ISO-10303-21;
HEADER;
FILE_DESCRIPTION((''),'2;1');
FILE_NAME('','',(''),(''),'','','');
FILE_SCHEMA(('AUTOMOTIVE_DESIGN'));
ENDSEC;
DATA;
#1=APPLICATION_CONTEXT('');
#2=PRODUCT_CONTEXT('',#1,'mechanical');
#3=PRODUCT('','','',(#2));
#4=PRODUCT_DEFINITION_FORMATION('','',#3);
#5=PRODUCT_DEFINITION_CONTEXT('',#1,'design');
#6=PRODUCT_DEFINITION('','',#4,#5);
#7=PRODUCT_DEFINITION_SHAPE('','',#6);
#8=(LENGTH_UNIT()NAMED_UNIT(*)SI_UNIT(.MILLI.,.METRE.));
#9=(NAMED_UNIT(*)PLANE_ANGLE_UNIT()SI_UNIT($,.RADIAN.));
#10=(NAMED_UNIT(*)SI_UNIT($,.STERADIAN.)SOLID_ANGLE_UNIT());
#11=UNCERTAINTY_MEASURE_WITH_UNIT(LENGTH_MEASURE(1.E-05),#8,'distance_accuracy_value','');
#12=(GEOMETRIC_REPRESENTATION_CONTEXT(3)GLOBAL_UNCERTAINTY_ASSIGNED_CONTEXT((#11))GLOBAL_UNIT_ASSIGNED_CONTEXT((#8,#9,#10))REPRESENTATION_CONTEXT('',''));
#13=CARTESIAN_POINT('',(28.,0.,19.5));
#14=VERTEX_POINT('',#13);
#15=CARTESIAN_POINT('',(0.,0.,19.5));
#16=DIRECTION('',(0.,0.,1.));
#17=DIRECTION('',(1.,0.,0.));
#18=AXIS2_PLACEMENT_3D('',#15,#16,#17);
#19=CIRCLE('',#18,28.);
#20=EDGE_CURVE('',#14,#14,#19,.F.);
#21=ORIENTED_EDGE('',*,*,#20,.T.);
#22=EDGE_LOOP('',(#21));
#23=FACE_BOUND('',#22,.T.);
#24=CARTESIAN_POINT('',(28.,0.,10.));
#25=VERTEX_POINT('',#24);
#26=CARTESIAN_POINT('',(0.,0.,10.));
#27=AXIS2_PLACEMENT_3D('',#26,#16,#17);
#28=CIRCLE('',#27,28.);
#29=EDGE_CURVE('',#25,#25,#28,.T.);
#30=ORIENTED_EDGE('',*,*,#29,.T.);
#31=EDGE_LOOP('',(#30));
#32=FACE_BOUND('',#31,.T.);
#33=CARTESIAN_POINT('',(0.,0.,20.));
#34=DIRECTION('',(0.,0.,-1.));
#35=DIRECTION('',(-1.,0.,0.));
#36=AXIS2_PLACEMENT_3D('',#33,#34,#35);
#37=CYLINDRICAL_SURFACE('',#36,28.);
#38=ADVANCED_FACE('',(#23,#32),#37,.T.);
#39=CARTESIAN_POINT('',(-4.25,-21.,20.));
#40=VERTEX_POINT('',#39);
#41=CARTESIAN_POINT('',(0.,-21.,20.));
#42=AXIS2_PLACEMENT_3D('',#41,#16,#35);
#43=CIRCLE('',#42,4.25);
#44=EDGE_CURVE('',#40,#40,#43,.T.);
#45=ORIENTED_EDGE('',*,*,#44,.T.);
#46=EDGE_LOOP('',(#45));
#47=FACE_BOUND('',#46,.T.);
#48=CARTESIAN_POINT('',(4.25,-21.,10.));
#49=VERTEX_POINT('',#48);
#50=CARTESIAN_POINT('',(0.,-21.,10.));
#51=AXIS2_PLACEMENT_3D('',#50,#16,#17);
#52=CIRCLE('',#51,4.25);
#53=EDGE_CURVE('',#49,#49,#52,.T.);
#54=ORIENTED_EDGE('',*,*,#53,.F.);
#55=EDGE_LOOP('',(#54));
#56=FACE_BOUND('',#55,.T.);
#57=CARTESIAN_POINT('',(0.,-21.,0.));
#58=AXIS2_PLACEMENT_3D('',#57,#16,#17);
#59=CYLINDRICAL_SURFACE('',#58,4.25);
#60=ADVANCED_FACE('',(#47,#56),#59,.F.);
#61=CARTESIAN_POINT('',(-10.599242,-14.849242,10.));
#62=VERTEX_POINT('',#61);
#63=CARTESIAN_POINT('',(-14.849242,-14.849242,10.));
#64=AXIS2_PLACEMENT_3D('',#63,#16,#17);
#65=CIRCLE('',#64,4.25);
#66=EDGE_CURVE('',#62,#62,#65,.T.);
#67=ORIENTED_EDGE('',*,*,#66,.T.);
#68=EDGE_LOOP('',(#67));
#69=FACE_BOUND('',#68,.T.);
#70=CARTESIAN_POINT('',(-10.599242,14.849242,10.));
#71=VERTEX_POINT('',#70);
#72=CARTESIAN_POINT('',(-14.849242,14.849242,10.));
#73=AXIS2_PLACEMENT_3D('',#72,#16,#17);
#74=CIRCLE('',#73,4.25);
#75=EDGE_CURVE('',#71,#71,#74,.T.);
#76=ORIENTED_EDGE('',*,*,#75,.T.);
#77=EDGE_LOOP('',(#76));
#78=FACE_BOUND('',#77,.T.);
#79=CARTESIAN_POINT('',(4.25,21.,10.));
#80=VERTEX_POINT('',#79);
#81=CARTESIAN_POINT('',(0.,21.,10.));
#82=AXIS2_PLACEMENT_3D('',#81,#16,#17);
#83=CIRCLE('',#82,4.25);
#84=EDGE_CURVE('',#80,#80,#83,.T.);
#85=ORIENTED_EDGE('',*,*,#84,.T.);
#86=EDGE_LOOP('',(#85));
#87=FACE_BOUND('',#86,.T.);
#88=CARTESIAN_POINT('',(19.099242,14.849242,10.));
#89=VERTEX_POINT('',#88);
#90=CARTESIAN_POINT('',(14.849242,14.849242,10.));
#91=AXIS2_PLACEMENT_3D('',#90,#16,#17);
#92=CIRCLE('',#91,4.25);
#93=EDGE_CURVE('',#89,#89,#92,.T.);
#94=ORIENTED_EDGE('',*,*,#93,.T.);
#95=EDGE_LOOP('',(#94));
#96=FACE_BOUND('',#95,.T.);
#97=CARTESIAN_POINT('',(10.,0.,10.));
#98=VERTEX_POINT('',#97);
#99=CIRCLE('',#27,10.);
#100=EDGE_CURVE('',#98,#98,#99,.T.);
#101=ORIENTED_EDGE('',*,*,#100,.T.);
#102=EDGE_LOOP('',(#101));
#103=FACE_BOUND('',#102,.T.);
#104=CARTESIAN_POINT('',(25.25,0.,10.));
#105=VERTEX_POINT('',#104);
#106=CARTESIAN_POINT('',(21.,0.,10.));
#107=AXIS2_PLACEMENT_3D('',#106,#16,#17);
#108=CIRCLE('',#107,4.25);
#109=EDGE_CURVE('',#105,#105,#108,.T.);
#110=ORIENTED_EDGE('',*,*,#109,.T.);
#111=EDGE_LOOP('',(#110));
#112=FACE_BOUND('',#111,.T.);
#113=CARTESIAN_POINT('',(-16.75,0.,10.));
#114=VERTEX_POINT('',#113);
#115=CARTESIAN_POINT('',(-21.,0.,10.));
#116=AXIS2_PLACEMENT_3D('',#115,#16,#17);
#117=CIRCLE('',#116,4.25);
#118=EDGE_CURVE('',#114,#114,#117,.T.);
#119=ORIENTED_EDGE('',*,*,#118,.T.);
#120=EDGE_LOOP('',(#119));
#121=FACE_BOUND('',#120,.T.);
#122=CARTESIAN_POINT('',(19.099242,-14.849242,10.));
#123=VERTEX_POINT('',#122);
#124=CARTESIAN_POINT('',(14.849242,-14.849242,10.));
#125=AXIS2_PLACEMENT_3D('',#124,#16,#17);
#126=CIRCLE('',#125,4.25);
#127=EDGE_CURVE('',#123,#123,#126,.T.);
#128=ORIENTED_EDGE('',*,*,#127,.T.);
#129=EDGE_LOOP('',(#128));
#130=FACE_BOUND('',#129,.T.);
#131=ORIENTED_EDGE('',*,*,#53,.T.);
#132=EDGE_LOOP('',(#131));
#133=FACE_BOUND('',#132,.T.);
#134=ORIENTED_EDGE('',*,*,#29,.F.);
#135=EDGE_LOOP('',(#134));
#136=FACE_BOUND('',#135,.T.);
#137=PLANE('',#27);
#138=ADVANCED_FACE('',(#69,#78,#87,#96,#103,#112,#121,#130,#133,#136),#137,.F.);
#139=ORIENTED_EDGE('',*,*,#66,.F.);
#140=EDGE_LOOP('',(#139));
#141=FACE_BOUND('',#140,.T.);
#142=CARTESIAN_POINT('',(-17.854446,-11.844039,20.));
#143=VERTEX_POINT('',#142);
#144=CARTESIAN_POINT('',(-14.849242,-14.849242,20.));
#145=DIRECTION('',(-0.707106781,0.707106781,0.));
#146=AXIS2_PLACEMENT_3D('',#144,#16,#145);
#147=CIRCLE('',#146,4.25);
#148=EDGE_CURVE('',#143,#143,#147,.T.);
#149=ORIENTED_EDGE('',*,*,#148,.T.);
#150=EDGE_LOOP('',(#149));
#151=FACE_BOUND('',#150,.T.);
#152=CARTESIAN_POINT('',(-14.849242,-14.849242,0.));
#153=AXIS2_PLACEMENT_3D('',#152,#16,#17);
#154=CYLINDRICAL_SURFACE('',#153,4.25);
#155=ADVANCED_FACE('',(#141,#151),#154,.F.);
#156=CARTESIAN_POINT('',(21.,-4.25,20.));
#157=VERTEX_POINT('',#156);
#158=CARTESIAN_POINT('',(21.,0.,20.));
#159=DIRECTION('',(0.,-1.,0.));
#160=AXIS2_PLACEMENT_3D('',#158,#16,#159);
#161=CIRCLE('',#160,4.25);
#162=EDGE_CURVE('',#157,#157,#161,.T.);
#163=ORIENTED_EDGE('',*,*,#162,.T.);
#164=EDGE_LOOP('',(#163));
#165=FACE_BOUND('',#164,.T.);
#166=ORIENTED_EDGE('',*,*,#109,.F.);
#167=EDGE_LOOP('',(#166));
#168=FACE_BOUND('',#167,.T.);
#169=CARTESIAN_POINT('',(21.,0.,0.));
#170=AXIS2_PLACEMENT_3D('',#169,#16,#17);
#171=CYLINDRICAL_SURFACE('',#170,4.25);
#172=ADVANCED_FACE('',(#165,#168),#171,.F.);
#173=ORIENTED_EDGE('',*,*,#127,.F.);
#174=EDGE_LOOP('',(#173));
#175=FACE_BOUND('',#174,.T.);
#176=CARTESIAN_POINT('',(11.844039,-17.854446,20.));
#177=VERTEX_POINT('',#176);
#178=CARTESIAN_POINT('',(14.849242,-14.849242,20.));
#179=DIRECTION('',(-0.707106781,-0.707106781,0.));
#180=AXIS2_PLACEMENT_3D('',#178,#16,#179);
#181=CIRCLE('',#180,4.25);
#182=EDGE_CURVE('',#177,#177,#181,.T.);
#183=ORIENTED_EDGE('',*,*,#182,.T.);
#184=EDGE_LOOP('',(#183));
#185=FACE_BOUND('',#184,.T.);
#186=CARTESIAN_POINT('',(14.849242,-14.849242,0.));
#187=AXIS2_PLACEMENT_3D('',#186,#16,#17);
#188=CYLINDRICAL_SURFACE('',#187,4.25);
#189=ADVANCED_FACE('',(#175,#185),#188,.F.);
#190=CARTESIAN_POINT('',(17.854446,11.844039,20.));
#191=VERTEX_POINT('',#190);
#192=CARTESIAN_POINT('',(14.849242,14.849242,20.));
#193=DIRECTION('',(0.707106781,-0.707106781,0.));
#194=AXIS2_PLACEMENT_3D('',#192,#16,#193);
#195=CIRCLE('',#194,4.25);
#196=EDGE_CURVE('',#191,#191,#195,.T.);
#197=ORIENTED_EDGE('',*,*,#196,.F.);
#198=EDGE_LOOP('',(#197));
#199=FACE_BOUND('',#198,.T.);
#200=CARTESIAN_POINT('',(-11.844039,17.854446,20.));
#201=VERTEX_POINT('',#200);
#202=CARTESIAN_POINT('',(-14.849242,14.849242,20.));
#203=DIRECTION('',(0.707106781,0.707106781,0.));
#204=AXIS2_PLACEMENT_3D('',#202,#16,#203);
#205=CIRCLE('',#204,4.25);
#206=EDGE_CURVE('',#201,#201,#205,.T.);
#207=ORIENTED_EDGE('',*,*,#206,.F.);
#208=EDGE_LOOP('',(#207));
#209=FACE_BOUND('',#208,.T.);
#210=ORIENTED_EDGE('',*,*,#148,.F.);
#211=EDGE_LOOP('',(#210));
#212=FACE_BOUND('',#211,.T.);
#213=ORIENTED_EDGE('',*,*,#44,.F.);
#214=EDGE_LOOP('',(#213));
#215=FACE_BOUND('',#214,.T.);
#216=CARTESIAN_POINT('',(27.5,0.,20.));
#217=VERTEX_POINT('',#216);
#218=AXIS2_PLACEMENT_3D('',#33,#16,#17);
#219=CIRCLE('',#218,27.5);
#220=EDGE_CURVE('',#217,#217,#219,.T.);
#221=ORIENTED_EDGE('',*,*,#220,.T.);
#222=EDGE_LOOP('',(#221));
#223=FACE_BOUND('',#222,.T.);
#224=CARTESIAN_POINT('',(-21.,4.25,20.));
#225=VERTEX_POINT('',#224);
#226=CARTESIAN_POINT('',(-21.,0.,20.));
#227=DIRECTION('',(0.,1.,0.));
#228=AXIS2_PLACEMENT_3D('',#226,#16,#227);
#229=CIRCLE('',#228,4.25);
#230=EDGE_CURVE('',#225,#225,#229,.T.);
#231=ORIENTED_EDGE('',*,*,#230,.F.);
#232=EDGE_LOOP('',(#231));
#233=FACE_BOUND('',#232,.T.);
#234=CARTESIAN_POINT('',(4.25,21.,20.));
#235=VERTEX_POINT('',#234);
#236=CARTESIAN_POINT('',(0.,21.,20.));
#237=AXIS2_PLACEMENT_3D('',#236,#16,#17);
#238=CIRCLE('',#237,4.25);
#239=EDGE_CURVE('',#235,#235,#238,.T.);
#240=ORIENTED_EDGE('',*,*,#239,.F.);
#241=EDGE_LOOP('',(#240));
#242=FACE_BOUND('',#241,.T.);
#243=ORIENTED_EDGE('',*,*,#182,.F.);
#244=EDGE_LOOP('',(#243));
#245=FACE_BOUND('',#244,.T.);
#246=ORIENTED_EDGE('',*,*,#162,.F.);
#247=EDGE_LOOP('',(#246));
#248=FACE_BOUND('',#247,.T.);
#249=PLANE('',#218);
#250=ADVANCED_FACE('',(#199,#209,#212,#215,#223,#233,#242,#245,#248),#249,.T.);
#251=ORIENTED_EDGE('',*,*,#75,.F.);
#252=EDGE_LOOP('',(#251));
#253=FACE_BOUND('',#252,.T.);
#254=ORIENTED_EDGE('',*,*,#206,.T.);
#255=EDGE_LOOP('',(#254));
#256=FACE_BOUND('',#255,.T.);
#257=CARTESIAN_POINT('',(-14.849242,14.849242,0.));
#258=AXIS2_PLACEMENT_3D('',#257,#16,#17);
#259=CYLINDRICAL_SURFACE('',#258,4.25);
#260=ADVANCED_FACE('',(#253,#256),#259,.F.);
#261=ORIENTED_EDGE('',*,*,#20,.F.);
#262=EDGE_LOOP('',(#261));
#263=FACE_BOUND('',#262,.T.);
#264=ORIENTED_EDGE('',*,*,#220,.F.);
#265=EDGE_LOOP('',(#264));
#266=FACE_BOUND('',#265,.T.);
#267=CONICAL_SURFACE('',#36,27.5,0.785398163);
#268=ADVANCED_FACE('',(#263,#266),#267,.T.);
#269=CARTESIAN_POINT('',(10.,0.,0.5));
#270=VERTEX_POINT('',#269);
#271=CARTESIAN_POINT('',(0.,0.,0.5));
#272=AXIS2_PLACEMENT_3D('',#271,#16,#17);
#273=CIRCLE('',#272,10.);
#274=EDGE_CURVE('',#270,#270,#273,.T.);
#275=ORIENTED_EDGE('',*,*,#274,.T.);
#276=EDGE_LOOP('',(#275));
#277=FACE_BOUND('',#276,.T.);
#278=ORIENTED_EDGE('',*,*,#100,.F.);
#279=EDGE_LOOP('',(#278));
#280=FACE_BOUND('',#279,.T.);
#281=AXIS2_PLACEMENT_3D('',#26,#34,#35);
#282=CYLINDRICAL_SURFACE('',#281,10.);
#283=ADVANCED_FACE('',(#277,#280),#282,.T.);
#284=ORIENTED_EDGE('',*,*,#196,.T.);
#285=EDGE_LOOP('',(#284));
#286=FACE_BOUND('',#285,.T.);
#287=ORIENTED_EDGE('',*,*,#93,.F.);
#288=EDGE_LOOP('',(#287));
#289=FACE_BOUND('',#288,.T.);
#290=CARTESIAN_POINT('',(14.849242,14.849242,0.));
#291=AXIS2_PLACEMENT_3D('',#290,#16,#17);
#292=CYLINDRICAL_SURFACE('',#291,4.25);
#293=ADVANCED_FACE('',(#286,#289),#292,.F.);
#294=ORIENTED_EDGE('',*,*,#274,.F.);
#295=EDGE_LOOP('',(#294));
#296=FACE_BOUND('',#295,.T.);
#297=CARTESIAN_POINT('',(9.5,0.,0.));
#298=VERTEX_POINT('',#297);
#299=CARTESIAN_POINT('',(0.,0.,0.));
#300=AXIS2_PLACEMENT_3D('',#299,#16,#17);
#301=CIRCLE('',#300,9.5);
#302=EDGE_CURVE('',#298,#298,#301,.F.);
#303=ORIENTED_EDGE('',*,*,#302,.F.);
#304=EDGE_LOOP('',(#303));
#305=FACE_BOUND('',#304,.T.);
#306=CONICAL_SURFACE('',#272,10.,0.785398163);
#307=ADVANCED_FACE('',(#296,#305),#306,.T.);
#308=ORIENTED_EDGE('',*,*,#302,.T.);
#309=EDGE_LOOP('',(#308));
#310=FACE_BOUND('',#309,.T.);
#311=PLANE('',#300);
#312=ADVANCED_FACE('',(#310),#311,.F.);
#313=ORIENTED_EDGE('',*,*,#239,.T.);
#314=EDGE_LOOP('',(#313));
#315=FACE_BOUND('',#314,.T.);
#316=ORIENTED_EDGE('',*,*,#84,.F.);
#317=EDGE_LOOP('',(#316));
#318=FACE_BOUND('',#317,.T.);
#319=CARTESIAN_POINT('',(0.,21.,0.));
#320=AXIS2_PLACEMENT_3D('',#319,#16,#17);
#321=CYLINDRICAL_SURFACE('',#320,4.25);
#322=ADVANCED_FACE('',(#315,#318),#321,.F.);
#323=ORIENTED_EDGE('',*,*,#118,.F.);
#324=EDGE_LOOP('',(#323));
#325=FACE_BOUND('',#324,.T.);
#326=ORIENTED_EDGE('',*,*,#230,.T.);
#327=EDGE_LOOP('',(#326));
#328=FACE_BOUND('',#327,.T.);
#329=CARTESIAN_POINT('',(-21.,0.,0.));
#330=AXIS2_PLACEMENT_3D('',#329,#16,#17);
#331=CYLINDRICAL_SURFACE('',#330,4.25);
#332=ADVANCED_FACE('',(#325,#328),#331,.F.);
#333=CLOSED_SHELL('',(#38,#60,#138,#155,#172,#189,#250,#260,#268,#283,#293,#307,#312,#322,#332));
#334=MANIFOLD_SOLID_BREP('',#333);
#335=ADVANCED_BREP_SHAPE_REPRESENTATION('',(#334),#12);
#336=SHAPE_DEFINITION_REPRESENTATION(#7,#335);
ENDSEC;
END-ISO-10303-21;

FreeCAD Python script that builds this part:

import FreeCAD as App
import Part
import Sketcher

V = App.Vector


def edges_at(feature, points):
    """Names of the edges that pass closest to the given points."""
    edges = feature.Shape.Edges
    near = lambda p: min(range(len(edges)), key=lambda i: edges[i].distToShape(Part.Vertex(*p))[0])
    return sorted({f"Edge{near(p) + 1}" for p in points})

doc = App.newDocument("Part")
body = doc.addObject("PartDesign::Body", "Body")

# Sketch on XY plane
sketch1 = body.newObject("Sketcher::SketchObject", "Sketch")
sketch1.AttachmentSupport = (doc.getObject("XY_Plane"), [""])
sketch1.MapMode = "FlatFace"
sketch1.addGeometry(Part.Circle(V(0, 0, 0), V(0, 0, 1), 10), False)
sketch1.addConstraint([
    Sketcher.Constraint("Coincident", 0, 3, -1, 1),
    Sketcher.Constraint("Diameter", 0, 20.0),
])
pad1 = body.newObject("PartDesign::Pad", "Pad")
pad1.Profile = sketch1
pad1.Length = 10

# Sketch on XY plane
sketch2 = body.newObject("Sketcher::SketchObject", "Sketch001")
sketch2.AttachmentSupport = (doc.getObject("XY_Plane"), [""])
sketch2.MapMode = "FlatFace"
sketch2.AttachmentOffset = App.Placement(V(0, 0, 10), App.Rotation())
sketch2.addGeometry(Part.Circle(V(0, 0, 0), V(0, 0, 1), 28), False)
sketch2.addConstraint([
    Sketcher.Constraint("Coincident", 0, 3, -1, 1),
    Sketcher.Constraint("Diameter", 0, 56.0),
])
pad2 = body.newObject("PartDesign::Pad", "Pad001")
pad2.Profile = sketch2
pad2.Length = 10

# Sketch on XY plane
sketch3 = body.newObject("Sketcher::SketchObject", "Sketch002")
sketch3.AttachmentSupport = (doc.getObject("XY_Plane"), [""])
sketch3.MapMode = "FlatFace"
sketch3.AttachmentOffset = App.Placement(V(0, 0, 20), App.Rotation())
sketch3.addGeometry(Part.Circle(V(0, 21, 0), V(0, 0, 1), 4.2), False)
sketch3.addConstraint([
    Sketcher.Constraint("PointOnObject", 0, 3, -2),
    Sketcher.Constraint("Diameter", 0, 8.5),
    Sketcher.Constraint("DistanceY", -1, 1, 0, 3, 21.0),
])
pocket1 = body.newObject("PartDesign::Pocket", "Pocket")
pocket1.Profile = sketch3
pocket1.Type = "ThroughAll"
doc.recompute()

polarpattern = body.newObject("PartDesign::PolarPattern", "PolarPattern")
polarpattern.Originals = [pocket1]
polarpattern.Axis = (doc.getObject("Z_Axis"), [""])
polarpattern.Angle = 360
polarpattern.Occurrences = 8
body.Tip = polarpattern
doc.recompute()

chamfer = body.newObject("PartDesign::Chamfer", "Chamfer")
chamfer.Base = (polarpattern, edges_at(polarpattern, [(-10, 0, 0)]))
chamfer.Size = 0.5
doc.recompute()

chamfer2 = body.newObject("PartDesign::Chamfer", "Chamfer001")
chamfer2.Base = (chamfer, edges_at(chamfer, [(-28, 0, 20)]))
chamfer2.Size = 0.5

doc.recompute()
